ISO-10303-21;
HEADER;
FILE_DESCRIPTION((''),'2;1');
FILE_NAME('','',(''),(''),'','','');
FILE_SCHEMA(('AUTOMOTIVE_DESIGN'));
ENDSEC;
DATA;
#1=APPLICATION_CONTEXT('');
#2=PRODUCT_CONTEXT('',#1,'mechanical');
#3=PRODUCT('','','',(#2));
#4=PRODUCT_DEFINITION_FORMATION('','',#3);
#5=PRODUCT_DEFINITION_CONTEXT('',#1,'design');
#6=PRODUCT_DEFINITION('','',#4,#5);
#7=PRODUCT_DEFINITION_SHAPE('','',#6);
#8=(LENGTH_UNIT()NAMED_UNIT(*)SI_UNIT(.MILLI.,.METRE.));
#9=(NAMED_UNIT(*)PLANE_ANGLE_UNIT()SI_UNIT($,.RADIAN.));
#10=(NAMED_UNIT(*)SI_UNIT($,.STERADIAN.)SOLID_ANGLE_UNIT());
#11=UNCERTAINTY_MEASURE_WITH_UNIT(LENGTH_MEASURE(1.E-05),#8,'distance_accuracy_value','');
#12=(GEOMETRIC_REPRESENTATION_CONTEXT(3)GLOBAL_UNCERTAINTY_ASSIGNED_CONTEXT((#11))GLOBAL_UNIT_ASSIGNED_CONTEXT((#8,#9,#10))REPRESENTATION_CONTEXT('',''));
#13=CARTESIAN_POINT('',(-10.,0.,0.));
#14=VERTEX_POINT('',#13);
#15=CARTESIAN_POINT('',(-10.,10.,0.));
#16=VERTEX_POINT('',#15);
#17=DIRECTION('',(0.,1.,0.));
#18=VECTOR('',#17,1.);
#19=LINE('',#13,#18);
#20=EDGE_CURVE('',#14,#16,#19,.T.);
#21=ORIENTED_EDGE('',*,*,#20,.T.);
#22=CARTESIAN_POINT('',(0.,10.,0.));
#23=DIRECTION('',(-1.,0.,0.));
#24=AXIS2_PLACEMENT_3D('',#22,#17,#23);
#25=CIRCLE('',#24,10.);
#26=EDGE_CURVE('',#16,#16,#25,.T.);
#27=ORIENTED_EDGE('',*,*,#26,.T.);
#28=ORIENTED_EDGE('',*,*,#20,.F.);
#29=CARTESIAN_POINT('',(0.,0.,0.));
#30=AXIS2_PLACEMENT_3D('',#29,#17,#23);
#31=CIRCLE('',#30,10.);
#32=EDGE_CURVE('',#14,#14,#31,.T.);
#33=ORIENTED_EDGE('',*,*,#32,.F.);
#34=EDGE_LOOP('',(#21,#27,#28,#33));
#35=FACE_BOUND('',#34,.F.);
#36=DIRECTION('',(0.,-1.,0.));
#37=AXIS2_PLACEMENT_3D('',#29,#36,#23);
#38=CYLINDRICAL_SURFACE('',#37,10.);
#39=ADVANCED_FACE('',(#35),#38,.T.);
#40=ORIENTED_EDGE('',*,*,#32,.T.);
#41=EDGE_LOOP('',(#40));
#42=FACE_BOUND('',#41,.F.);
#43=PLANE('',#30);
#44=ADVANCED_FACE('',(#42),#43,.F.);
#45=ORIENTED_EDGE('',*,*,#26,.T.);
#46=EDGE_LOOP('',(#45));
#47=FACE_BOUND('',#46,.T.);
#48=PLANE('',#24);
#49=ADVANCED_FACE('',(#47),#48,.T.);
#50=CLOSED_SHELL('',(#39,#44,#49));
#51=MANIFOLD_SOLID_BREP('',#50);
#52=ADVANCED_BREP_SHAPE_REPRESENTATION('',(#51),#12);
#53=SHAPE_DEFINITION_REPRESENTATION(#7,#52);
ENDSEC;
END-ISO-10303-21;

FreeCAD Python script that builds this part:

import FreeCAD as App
import Part
import Sketcher

doc = App.newDocument("Part")
body = doc.addObject("PartDesign::Body", "Body")

# Sketch on XZ plane
sketch1 = body.newObject("Sketcher::SketchObject", "Sketch")
sketch1.AttachmentSupport = (doc.getObject("XZ_Plane"), [""])
sketch1.MapMode = "FlatFace"
sketch1.addGeometry(Part.Circle(App.Vector(0, 0, 0), App.Vector(0, 0, 1), 10), False)
sketch1.addConstraint(Sketcher.Constraint("Coincident", 0, 3, -1, 1))
sketch1.addConstraint(Sketcher.Constraint("Diameter", 0, 20.0))
pad1 = body.newObject("PartDesign::Pad", "Pad")
pad1.Profile = sketch1
pad1.Length = 10
pad1.Reversed = True

doc.recompute()
